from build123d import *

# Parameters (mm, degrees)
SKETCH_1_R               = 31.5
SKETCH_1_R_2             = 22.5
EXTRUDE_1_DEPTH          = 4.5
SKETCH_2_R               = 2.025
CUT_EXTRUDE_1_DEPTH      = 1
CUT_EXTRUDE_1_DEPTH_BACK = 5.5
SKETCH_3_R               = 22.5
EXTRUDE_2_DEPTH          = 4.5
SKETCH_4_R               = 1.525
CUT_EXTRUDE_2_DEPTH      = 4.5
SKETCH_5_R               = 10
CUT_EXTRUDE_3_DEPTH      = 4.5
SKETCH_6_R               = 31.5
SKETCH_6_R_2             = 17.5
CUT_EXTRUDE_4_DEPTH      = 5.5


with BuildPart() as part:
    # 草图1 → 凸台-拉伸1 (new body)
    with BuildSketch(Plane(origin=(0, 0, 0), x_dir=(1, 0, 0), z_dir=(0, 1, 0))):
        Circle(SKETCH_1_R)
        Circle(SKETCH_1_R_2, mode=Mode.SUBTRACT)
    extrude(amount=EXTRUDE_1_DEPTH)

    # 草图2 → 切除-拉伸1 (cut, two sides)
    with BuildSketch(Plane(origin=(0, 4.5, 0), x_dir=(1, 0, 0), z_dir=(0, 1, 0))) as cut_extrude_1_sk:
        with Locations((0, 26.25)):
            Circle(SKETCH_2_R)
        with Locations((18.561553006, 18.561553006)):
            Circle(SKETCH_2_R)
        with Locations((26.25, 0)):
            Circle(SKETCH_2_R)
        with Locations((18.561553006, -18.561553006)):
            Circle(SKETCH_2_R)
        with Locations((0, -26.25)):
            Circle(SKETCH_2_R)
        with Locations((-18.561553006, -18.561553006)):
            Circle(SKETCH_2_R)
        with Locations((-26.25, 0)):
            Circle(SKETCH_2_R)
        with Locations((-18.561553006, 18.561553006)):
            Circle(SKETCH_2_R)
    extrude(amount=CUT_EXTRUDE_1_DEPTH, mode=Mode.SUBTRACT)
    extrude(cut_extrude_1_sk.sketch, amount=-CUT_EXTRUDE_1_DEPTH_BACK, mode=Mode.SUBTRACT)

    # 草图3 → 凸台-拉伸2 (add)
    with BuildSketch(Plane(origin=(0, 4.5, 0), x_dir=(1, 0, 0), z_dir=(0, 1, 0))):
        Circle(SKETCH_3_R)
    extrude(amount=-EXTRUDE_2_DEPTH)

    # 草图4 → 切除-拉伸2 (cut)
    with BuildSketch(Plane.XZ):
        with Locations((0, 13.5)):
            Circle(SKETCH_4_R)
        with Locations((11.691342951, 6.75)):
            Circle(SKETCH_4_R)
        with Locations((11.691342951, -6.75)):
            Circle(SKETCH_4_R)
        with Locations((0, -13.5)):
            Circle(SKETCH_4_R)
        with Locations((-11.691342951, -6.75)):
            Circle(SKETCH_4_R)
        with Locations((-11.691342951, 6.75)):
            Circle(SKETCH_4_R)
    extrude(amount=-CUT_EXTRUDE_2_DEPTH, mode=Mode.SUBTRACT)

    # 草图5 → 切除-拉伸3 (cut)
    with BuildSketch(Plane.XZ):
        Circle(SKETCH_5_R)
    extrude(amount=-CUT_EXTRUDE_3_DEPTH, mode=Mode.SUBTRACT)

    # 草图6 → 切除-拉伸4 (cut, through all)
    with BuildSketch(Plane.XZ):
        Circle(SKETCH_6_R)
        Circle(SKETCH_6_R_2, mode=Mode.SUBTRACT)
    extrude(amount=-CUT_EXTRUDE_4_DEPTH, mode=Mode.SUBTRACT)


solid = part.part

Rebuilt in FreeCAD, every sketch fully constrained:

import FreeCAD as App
import Part
import Sketcher
from FreeCAD import Vector

doc = App.newDocument("Part")
body = doc.addObject("PartDesign::Body", "Body")

sketch1 = body.newObject("Sketcher::SketchObject", "Sketch")
sketch1.AttachmentSupport = (doc.getObject("XZ_Plane"), [""])
sketch1.MapMode = "FlatFace"
sketch1.addGeometry([
    Part.Circle(Vector(0, 0, 0), Vector(0, 0, 1), 32),
    Part.Circle(Vector(0, 0, 0), Vector(0, 0, 1), 22),
], False)
sketch1.addConstraint([
    Sketcher.Constraint("Coincident", 0, 3, -1, 1),
    Sketcher.Constraint("Coincident", 1, 3, -1, 1),
    Sketcher.Constraint("Diameter", 0, 63.0),
    Sketcher.Constraint("Diameter", 1, 45.0),
])
pad1 = body.newObject("PartDesign::Pad", "Pad")
pad1.Profile = sketch1
pad1.Length = 4.5
pad1.Reversed = True

sketch2 = body.newObject("Sketcher::SketchObject", "Sketch001")
sketch2.AttachmentSupport = (doc.getObject("XZ_Plane"), [""])
sketch2.MapMode = "FlatFace"
sketch2.AttachmentOffset = App.Placement(Vector(0, 0, -4.5), App.Rotation())
sketch2.addGeometry([
    Part.Circle(Vector(0, -26.2, 0), Vector(0, 0, 1), 2),
    Part.Circle(Vector(18.6, -18.6, 0), Vector(0, 0, 1), 2),
    Part.Circle(Vector(26.2, 0, 0), Vector(0, 0, 1), 2),
    Part.Circle(Vector(18.6, 18.6, 0), Vector(0, 0, 1), 2),
    Part.Circle(Vector(0, 26.2, 0), Vector(0, 0, 1), 2),
    Part.Circle(Vector(-18.6, 18.6, 0), Vector(0, 0, 1), 2),
    Part.Circle(Vector(-26.2, 0, 0), Vector(0, 0, 1), 2),
    Part.Circle(Vector(-18.6, -18.6, 0), Vector(0, 0, 1), 2),
], False)
sketch2.addConstraint([
    Sketcher.Constraint("Equal", 0, 1),
    Sketcher.Constraint("Equal", 1, 2),
    Sketcher.Constraint("Equal", 2, 3),
    Sketcher.Constraint("Equal", 3, 4),
    Sketcher.Constraint("Equal", 4, 5),
    Sketcher.Constraint("Equal", 5, 6),
    Sketcher.Constraint("Equal", 6, 7),
    Sketcher.Constraint("Symmetric", 0, 3, 4, 3, -1, 1),
    Sketcher.Constraint("Symmetric", 1, 3, 5, 3, -1, 1),
    Sketcher.Constraint("Symmetric", 2, 3, 6, 3, -1, 1),
    Sketcher.Constraint("Symmetric", 3, 3, 7, 3, -1, 1),
    Sketcher.Constraint("Symmetric", 3, 3, 5, 3, -2),
    Sketcher.Constraint("PointOnObject", 0, 3, -2),
    Sketcher.Constraint("PointOnObject", 2, 3, -1),
    Sketcher.Constraint("Diameter", 0, 4.05),
    Sketcher.Constraint("DistanceY", 0, 3, 4, 3, 52.5),
    Sketcher.Constraint("DistanceX", -1, 1, 2, 3, 26.25),
    Sketcher.Constraint("DistanceX", -1, 1, 1, 3, 18.561553),
    Sketcher.Constraint("DistanceY", 1, 3, -1, 1, 18.561553),
])
pocket1 = body.newObject("PartDesign::Pocket", "Pocket")
pocket1.Profile = sketch2
pocket1.Type = "ThroughAll"
pocket1.Midplane = True

sketch3 = body.newObject("Sketcher::SketchObject", "Sketch002")
sketch3.AttachmentSupport = (doc.getObject("XZ_Plane"), [""])
sketch3.MapMode = "FlatFace"
sketch3.AttachmentOffset = App.Placement(Vector(0, 0, -4.5), App.Rotation())
sketch3.addGeometry(Part.Circle(Vector(0, 0, 0), Vector(0, 0, 1), 22), False)
sketch3.addConstraint([
    Sketcher.Constraint("Coincident", 0, 3, -1, 1),
    Sketcher.Constraint("Diameter", 0, 45.0),
])
pad2 = body.newObject("PartDesign::Pad", "Pad001")
pad2.Profile = sketch3
pad2.Length = 4.5

sketch4 = body.newObject("Sketcher::SketchObject", "Sketch003")
sketch4.AttachmentSupport = (doc.getObject("XZ_Plane"), [""])
sketch4.MapMode = "FlatFace"
sketch4.addGeometry([
    Part.Circle(Vector(0, 13.5, 0), Vector(0, 0, 1), 1.5),
    Part.Circle(Vector(11.7, 6.8, 0), Vector(0, 0, 1), 1.5),
    Part.Circle(Vector(11.7, -6.8, 0), Vector(0, 0, 1), 1.5),
    Part.Circle(Vector(0, -13.5, 0), Vector(0, 0, 1), 1.5),
    Part.Circle(Vector(-11.7, -6.8, 0), Vector(0, 0, 1), 1.5),
    Part.Circle(Vector(-11.7, 6.8, 0), Vector(0, 0, 1), 1.5),
], False)
sketch4.addConstraint([
    Sketcher.Constraint("Equal", 0, 1),
    Sketcher.Constraint("Equal", 1, 2),
    Sketcher.Constraint("Equal", 2, 3),
    Sketcher.Constraint("Equal", 3, 4),
    Sketcher.Constraint("Equal", 4, 5),
    Sketcher.Constraint("Symmetric", 0, 3, 3, 3, -1, 1),
    Sketcher.Constraint("Symmetric", 1, 3, 4, 3, -1, 1),
    Sketcher.Constraint("Symmetric", 2, 3, 5, 3, -1, 1),
    Sketcher.Constraint("Symmetric", 2, 3, 4, 3, -2),
    Sketcher.Constraint("PointOnObject", 0, 3, -2),
    Sketcher.Constraint("Diameter", 0, 3.05),
    Sketcher.Constraint("DistanceY", 3, 3, 0, 3, 27.0),
    Sketcher.Constraint("DistanceY", 2, 3, 1, 3, 13.5),
    Sketcher.Constraint("DistanceX", -1, 1, 1, 3, 11.691343),
])
pocket2 = body.newObject("PartDesign::Pocket", "Pocket001")
pocket2.Profile = sketch4
pocket2.Length = 4.5

sketch5 = body.newObject("Sketcher::SketchObject", "Sketch004")
sketch5.AttachmentSupport = (doc.getObject("XZ_Plane"), [""])
sketch5.MapMode = "FlatFace"
sketch5.addGeometry(Part.Circle(Vector(0, 0, 0), Vector(0, 0, 1), 10), False)
sketch5.addConstraint([
    Sketcher.Constraint("Coincident", 0, 3, -1, 1),
    Sketcher.Constraint("Diameter", 0, 20.0),
])
pocket3 = body.newObject("PartDesign::Pocket", "Pocket002")
pocket3.Profile = sketch5
pocket3.Length = 4.5

sketch6 = body.newObject("Sketcher::SketchObject", "Sketch005")
sketch6.AttachmentSupport = (doc.getObject("XZ_Plane"), [""])
sketch6.MapMode = "FlatFace"
sketch6.addGeometry([
    Part.Circle(Vector(0, 0, 0), Vector(0, 0, 1), 32),
    Part.Circle(Vector(0, 0, 0), Vector(0, 0, 1), 18),
], False)
sketch6.addConstraint([
    Sketcher.Constraint("Coincident", 0, 3, -1, 1),
    Sketcher.Constraint("Coincident", 1, 3, -1, 1),
    Sketcher.Constraint("Diameter", 0, 63.0),
    Sketcher.Constraint("Diameter", 1, 35.0),
])
pocket4 = body.newObject("PartDesign::Pocket", "Pocket003")
pocket4.Profile = sketch6
pocket4.Type = "ThroughAll"

doc.recompute()
